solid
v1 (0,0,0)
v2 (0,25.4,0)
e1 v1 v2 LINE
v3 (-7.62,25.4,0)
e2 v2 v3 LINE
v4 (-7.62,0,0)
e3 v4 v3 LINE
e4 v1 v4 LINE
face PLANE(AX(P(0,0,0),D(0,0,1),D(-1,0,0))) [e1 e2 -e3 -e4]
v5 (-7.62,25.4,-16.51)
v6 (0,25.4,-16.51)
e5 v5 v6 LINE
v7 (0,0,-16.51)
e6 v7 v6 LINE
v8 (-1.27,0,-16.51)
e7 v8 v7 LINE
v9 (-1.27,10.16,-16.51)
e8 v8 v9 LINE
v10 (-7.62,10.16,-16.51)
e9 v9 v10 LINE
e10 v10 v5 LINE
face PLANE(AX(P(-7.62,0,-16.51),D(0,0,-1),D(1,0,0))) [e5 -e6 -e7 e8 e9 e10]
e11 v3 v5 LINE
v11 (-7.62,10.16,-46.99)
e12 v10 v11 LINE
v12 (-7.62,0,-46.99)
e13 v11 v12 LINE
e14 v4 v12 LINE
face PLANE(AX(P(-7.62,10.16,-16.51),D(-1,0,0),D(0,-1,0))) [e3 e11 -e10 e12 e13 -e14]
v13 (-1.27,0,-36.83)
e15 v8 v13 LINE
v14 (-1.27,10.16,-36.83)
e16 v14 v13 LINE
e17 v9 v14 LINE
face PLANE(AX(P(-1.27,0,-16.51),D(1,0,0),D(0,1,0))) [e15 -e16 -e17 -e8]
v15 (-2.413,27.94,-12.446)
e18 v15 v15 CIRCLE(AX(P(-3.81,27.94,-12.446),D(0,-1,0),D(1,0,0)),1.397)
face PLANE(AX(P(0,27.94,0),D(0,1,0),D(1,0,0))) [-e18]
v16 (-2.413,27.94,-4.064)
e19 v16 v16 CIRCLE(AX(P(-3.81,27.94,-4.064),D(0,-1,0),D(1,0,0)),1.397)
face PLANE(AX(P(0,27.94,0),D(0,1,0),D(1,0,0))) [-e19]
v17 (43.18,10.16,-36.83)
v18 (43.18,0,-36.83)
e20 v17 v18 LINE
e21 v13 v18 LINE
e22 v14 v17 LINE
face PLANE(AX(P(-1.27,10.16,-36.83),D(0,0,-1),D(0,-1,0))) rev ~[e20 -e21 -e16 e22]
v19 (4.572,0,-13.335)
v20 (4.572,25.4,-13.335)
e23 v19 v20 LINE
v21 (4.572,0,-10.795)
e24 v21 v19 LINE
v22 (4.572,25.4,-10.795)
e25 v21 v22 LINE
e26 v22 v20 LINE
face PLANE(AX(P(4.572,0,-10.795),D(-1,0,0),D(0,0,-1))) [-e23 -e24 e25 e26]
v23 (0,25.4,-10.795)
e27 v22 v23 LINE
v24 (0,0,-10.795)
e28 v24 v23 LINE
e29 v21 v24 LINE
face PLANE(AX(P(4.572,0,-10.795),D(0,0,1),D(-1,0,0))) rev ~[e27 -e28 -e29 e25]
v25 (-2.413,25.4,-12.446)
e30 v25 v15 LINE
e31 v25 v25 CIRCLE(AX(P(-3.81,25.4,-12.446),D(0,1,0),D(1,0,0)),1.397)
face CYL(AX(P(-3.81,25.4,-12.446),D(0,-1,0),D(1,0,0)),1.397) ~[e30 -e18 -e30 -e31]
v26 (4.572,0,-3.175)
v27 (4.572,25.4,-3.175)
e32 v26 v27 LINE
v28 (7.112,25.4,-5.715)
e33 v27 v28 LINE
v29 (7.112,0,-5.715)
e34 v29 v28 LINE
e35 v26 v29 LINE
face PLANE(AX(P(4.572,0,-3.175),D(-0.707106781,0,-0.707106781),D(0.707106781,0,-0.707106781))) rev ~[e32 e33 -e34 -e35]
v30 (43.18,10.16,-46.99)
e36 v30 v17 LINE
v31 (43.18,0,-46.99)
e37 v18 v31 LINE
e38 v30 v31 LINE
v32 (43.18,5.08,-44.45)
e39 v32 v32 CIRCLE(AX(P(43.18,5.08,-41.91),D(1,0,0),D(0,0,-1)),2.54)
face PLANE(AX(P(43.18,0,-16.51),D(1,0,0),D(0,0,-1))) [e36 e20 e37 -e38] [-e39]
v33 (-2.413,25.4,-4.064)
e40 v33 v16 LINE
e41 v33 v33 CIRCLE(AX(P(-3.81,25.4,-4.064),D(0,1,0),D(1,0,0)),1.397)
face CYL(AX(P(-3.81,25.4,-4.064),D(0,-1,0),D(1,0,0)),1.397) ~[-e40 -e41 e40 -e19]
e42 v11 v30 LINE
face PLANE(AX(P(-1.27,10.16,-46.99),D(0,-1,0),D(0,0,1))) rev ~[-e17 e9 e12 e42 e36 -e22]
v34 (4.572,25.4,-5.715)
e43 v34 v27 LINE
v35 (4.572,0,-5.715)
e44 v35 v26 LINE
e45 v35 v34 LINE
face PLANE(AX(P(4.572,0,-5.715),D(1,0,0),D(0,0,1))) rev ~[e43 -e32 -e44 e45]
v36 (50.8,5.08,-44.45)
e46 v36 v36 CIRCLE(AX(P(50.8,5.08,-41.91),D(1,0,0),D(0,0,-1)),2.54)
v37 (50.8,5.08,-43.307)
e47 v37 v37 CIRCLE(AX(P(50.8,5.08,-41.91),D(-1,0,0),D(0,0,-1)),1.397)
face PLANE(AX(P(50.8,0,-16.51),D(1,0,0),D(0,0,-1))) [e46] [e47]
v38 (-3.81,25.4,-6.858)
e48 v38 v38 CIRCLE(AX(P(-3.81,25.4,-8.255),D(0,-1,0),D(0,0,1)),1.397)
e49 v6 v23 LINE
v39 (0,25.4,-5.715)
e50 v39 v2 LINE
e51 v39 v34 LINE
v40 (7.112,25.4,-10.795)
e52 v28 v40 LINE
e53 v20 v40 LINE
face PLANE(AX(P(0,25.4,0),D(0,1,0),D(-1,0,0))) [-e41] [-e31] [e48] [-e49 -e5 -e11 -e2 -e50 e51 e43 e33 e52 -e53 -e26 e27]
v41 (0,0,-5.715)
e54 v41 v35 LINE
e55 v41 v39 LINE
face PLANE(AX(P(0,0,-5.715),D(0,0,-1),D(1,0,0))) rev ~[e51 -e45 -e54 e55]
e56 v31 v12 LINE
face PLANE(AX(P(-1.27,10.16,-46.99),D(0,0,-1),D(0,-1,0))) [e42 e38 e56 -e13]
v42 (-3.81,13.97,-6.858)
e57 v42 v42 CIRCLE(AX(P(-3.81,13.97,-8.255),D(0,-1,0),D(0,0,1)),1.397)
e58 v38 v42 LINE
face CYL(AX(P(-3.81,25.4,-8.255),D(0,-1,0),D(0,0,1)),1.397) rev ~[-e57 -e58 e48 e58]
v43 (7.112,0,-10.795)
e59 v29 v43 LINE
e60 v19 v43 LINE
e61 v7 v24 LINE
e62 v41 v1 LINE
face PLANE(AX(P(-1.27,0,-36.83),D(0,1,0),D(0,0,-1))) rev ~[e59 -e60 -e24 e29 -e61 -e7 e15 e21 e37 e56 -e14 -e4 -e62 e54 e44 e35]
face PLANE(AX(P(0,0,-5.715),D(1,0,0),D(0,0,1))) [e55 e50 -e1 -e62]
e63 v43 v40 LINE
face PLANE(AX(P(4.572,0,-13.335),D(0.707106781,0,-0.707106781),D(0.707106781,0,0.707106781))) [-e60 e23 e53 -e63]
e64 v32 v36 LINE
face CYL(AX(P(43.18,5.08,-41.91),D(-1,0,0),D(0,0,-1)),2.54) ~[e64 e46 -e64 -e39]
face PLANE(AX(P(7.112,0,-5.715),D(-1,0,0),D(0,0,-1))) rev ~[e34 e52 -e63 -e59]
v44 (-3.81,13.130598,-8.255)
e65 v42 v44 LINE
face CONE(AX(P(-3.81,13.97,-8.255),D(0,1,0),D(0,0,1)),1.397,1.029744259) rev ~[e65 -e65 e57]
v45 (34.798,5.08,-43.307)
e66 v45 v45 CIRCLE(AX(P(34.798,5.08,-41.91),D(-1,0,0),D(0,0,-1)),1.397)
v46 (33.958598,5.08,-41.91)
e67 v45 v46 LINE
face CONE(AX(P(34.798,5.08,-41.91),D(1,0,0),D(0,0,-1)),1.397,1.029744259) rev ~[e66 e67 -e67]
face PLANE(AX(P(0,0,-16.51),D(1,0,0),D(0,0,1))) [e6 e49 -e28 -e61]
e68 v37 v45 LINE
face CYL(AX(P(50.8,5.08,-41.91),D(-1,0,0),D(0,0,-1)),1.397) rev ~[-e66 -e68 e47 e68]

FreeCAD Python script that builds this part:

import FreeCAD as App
import Part
import Sketcher

V = App.Vector
Q = App.Units.Quantity

doc = App.newDocument("Part")
params = doc.addObject("Spreadsheet::Sheet", "Params")
for row, (alias, value) in enumerate([
    ("sketch1_width", "0.3 in"),
    ("sketch1_height", "0.1 in"),
    ("sketch1_height2", "0.2 in"),
    ("sketch1_height3", "0.65 in"),
    ("pad1_length", "1 in"),
    ("sketch2_diameter", "0.11 in"),
    ("pad2_length", "0.1 in"),
    ("sketch3_diameter", "0.11 in"),
    ("hole_diameter", "0.11 in"),
    ("hole_depth", "0.45 in"),
    ("sketch4_height", "0.4 in"),
    ("sketch4_width", "0.25 in"),
    ("pad3_length", "1.2 in"),
    ("sketch5_width", "0.4 in"),
    ("pad4_length", "1.75 in"),
    ("sketch6_diameter", "0.2 in"),
    ("pad5_length", "0.3 in"),
    ("sketch7_diameter", "0.11 in"),
    ("hole2_diameter", "0.11 in"),
    ("hole2_depth", "0.63 in"),
], start=1):
    params.set(f"A{row}", alias)
    params.set(f"B{row}", "=" + value)
    params.setAlias(f"B{row}", alias)

body = doc.addObject("PartDesign::Body", "Body")

# Sketch on XZ plane
sketch1 = body.newObject("Sketcher::SketchObject", "Sketch")
sketch1.AttachmentSupport = (doc.getObject("XZ_Plane"), [""])
sketch1.MapMode = "FlatFace"
sketch1.addGeometry([
    Part.LineSegment(V(-7.62, 0, 0), V(0, 0, 0)),  # 0
    Part.LineSegment(V(0, 0, 0), V(0, -5.715, 0)),  # 1
    Part.LineSegment(V(0, -5.715, 0), V(4.572, -5.715, 0)),  # 2
    Part.LineSegment(V(4.572, -5.715, 0), V(4.572, -3.175, 0)),  # 3
    Part.LineSegment(V(4.572, -3.175, 0), V(7.112, -5.715, 0)),  # 4
    Part.LineSegment(V(7.112, -5.715, 0), V(7.112, -10.795, 0)),  # 5
    Part.LineSegment(V(7.112, -10.795, 0), V(4.572, -13.335, 0)),  # 6
    Part.LineSegment(V(4.572, -13.335, 0), V(4.572, -10.795, 0)),  # 7
    Part.LineSegment(V(4.572, -10.795, 0), V(0, -10.795, 0)),  # 8
    Part.LineSegment(V(0, -10.795, 0), V(0, -16.51, 0)),  # 9
    Part.LineSegment(V(0, -16.51, 0), V(-7.62, -16.51, 0)),  # 10
    Part.LineSegment(V(-7.62, -16.51, 0), V(-7.62, 0, 0)),  # 11
], False)
sketch1.addConstraint([
    Sketcher.Constraint("Coincident", 0, 2, 1, 1),
    Sketcher.Constraint("Coincident", 1, 2, 2, 1),
    Sketcher.Constraint("Coincident", 2, 2, 3, 1),
    Sketcher.Constraint("Coincident", 3, 2, 4, 1),
    Sketcher.Constraint("Coincident", 4, 2, 5, 1),
    Sketcher.Constraint("Coincident", 5, 2, 6, 1),
    Sketcher.Constraint("Coincident", 6, 2, 7, 1),
    Sketcher.Constraint("Coincident", 7, 2, 8, 1),
    Sketcher.Constraint("Coincident", 8, 2, 9, 1),
    Sketcher.Constraint("Coincident", 9, 2, 10, 1),
    Sketcher.Constraint("Coincident", 10, 2, 11, 1),
    Sketcher.Constraint("Coincident", 11, 2, 0, 1),
    Sketcher.Constraint("Horizontal", 0),
    Sketcher.Constraint("Vertical", 1),
    Sketcher.Constraint("Horizontal", 2),
    Sketcher.Constraint("Vertical", 3),
    Sketcher.Constraint("Vertical", 5),
    Sketcher.Constraint("Vertical", 7),
    Sketcher.Constraint("Horizontal", 8),
    Sketcher.Constraint("Vertical", 9),
    Sketcher.Constraint("Horizontal", 10),
    Sketcher.Constraint("Vertical", 11),
    Sketcher.Constraint("Coincident", 0, 2, -1, 1),
    Sketcher.Constraint("PointOnObject", 8, 2, -2),
    Sketcher.Constraint("Perpendicular", 4, 6),
    Sketcher.Constraint("Horizontal", 2, 2, 4, 2),
    Sketcher.Constraint("Horizontal", 5, 2, 7, 2),
    Sketcher.Constraint("Vertical", 3, 2, 6, 2),
    Sketcher.Constraint("Equal", 3, 7),
    Sketcher.Constraint("Equal", 1, 9),
    Sketcher.Constraint("DistanceX", 0, 1, 0, 2, Q("0.3 in")),
    Sketcher.Constraint("DistanceY", 3, 1, 3, 2, Q("0.1 in")),
    Sketcher.Constraint("DistanceY", 5, 2, 5, 1, Q("0.2 in")),
    Sketcher.Constraint("DistanceY", 11, 1, 11, 2, Q("0.65 in")),
    Sketcher.Constraint("DistanceX", -1, 1, 4, 2, Q("0.28 in")),
])
sketch1.setExpression("Constraints[30]", "Params.sketch1_width")
sketch1.setExpression("Constraints[31]", "Params.sketch1_height")
sketch1.setExpression("Constraints[32]", "Params.sketch1_height2")
sketch1.setExpression("Constraints[33]", "Params.sketch1_height3")
pad1 = body.newObject("PartDesign::Pad", "Pad")
pad1.Profile = sketch1
pad1.setExpression("Length", "Params.pad1_length")
pad1.Reversed = True

# Sketch on XZ plane
sketch2 = body.newObject("Sketcher::SketchObject", "Sketch001")
sketch2.AttachmentSupport = (doc.getObject("XZ_Plane"), [""])
sketch2.MapMode = "FlatFace"
sketch2.AttachmentOffset = App.Placement(V(0, 0, -1 * 25.4), App.Rotation())
sketch2.addGeometry([
    Part.Circle(V(-3.81, -4.064, 0), V(0, 0, 1), 1.397),
    Part.Circle(V(-3.81, -12.446, 0), V(0, 0, 1), 1.397),
], False)
sketch2.addConstraint([
    Sketcher.Constraint("Equal", 0, 1),
    Sketcher.Constraint("Vertical", 0, 3, 1, 3),
    Sketcher.Constraint("Diameter", 0, Q("0.11 in")),
    Sketcher.Constraint("DistanceY", 0, 3, -1, 1, Q("0.16 in")),
    Sketcher.Constraint("DistanceX", 0, 3, -1, 1, Q("0.15 in")),
    Sketcher.Constraint("DistanceY", 1, 3, -1, 1, Q("0.49 in")),
])
sketch2.setExpression("Constraints[2]", "Params.sketch2_diameter")
pad2 = body.newObject("PartDesign::Pad", "Pad001")
pad2.Profile = sketch2
pad2.setExpression("Length", "Params.pad2_length")
pad2.Reversed = True

# Sketch on XZ plane
sketch3 = body.newObject("Sketcher::SketchObject", "Sketch002")
sketch3.AttachmentSupport = (doc.getObject("XZ_Plane"), [""])
sketch3.MapMode = "FlatFace"
sketch3.AttachmentOffset = App.Placement(V(0, 0, -1 * 25.4), App.Rotation())
sketch3.addGeometry(Part.Circle(V(-3.81, -8.255, 0), V(0, 0, 1), 1.397), False)
sketch3.addConstraint([
    Sketcher.Constraint("Diameter", 0, Q("0.11 in")),
    Sketcher.Constraint("DistanceX", 0, 3, -1, 1, Q("0.15 in")),
    Sketcher.Constraint("DistanceY", 0, 3, -1, 1, Q("0.325 in")),
])
sketch3.setExpression("Constraints[0]", "Params.sketch3_diameter")
doc.recompute()
hole = body.newObject("PartDesign::Hole", "Hole")
hole.Profile = sketch3
hole.ThreadType = "None"
hole.setExpression("Diameter", "Params.hole_diameter")
hole.DepthType = "Dimension"
hole.setExpression("Depth", "Params.hole_depth")
hole.DrillPoint = "Angled"
hole.DrillPointAngle = 118
hole.Reversed = True

# Sketch on XY plane
sketch4 = body.newObject("Sketcher::SketchObject", "Sketch003")
sketch4.AttachmentSupport = (doc.getObject("XY_Plane"), [""])
sketch4.MapMode = "FlatFace"
sketch4.AttachmentOffset = App.Placement(V(0, 0, -0.65 * 25.4), App.Rotation())
sketch4.addGeometry([
    Part.LineSegment(V(-1.27, 0, 0), V(-7.62, 0, 0)),
    Part.LineSegment(V(-7.62, 0, 0), V(-7.62, 10.16, 0)),
    Part.LineSegment(V(-7.62, 10.16, 0), V(-1.27, 10.16, 0)),
    Part.LineSegment(V(-1.27, 10.16, 0), V(-1.27, 0, 0)),
], False)
sketch4.addConstraint([
    Sketcher.Constraint("Coincident", 0, 2, 1, 1),
    Sketcher.Constraint("Coincident", 1, 2, 2, 1),
    Sketcher.Constraint("Coincident", 2, 2, 3, 1),
    Sketcher.Constraint("Coincident", 3, 2, 0, 1),
    Sketcher.Constraint("Horizontal", 0),
    Sketcher.Constraint("Vertical", 1),
    Sketcher.Constraint("Horizontal", 2),
    Sketcher.Constraint("Vertical", 3),
    Sketcher.Constraint("PointOnObject", 0, 2, -1),
    Sketcher.Constraint("DistanceY", 1, 1, 1, 2, Q("0.4 in")),
    Sketcher.Constraint("DistanceX", 0, 2, 0, 1, Q("0.25 in")),
    Sketcher.Constraint("DistanceX", 0, 2, -1, 1, Q("0.3 in")),
])
sketch4.setExpression("Constraints[9]", "Params.sketch4_height")
sketch4.setExpression("Constraints[10]", "Params.sketch4_width")
pad3 = body.newObject("PartDesign::Pad", "Pad002")
pad3.Profile = sketch4
pad3.setExpression("Length", "Params.pad3_length")
pad3.Reversed = True

# Sketch on YZ plane
sketch5 = body.newObject("Sketcher::SketchObject", "Sketch004")
sketch5.AttachmentSupport = (doc.getObject("YZ_Plane"), [""])
sketch5.MapMode = "FlatFace"
sketch5.AttachmentOffset = App.Placement(V(0, 0, -0.05 * 25.4), App.Rotation())
sketch5.addGeometry([
    Part.LineSegment(V(0, -46.99, 0), V(10.16, -46.99, 0)),
    Part.LineSegment(V(10.16, -46.99, 0), V(10.16, -36.83, 0)),
    Part.LineSegment(V(10.16, -36.83, 0), V(0, -36.83, 0)),
    Part.LineSegment(V(0, -36.83, 0), V(0, -46.99, 0)),
], False)
sketch5.addConstraint([
    Sketcher.Constraint("Coincident", 0, 2, 1, 1),
    Sketcher.Constraint("Coincident", 1, 2, 2, 1),
    Sketcher.Constraint("Coincident", 2, 2, 3, 1),
    Sketcher.Constraint("Coincident", 3, 2, 0, 1),
    Sketcher.Constraint("Horizontal", 0),
    Sketcher.Constraint("Vertical", 1),
    Sketcher.Constraint("Horizontal", 2),
    Sketcher.Constraint("Vertical", 3),
    Sketcher.Constraint("PointOnObject", 2, 2, -2),
    Sketcher.Constraint("Equal", 2, 1),
    Sketcher.Constraint("DistanceX", 0, 1, 0, 2, Q("0.4 in")),
    Sketcher.Constraint("DistanceY", 0, 2, -1, 1, Q("1.85 in")),
])
sketch5.setExpression("Constraints[10]", "Params.sketch5_width")
pad4 = body.newObject("PartDesign::Pad", "Pad003")
pad4.Profile = sketch5
pad4.setExpression("Length", "Params.pad4_length")

# Sketch on YZ plane
sketch6 = body.newObject("Sketcher::SketchObject", "Sketch005")
sketch6.AttachmentSupport = (doc.getObject("YZ_Plane"), [""])
sketch6.MapMode = "FlatFace"
sketch6.AttachmentOffset = App.Placement(V(0, 0, 1.7 * 25.4), App.Rotation())
sketch6.addGeometry(Part.Circle(V(5.08, -41.91, 0), V(0, 0, 1), 2.54), False)
sketch6.addConstraint([
    Sketcher.Constraint("Diameter", 0, Q("0.2 in")),
    Sketcher.Constraint("DistanceX", -1, 1, 0, 3, Q("0.2 in")),
    Sketcher.Constraint("DistanceY", 0, 3, -1, 1, Q("1.65 in")),
])
sketch6.setExpression("Constraints[0]", "Params.sketch6_diameter")
pad5 = body.newObject("PartDesign::Pad", "Pad004")
pad5.Profile = sketch6
pad5.setExpression("Length", "Params.pad5_length")

# Sketch on YZ plane
sketch7 = body.newObject("Sketcher::SketchObject", "Sketch006")
sketch7.AttachmentSupport = (doc.getObject("YZ_Plane"), [""])
sketch7.MapMode = "FlatFace"
sketch7.AttachmentOffset = App.Placement(V(0, 0, 2 * 25.4), App.Rotation())
sketch7.addGeometry(Part.Circle(V(5.08, -41.91, 0), V(0, 0, 1), 1.397), False)
sketch7.addConstraint([
    Sketcher.Constraint("Diameter", 0, Q("0.11 in")),
    Sketcher.Constraint("DistanceX", -1, 1, 0, 3, Q("0.2 in")),
    Sketcher.Constraint("DistanceY", 0, 3, -1, 1, Q("1.65 in")),
])
sketch7.setExpression("Constraints[0]", "Params.sketch7_diameter")
doc.recompute()
hole2 = body.newObject("PartDesign::Hole", "Hole001")
hole2.Profile = sketch7
hole2.ThreadType = "None"
hole2.setExpression("Diameter", "Params.hole2_diameter")
hole2.DepthType = "Dimension"
hole2.setExpression("Depth", "Params.hole2_depth")
hole2.DrillPoint = "Angled"
hole2.DrillPointAngle = 118

doc.recompute()
